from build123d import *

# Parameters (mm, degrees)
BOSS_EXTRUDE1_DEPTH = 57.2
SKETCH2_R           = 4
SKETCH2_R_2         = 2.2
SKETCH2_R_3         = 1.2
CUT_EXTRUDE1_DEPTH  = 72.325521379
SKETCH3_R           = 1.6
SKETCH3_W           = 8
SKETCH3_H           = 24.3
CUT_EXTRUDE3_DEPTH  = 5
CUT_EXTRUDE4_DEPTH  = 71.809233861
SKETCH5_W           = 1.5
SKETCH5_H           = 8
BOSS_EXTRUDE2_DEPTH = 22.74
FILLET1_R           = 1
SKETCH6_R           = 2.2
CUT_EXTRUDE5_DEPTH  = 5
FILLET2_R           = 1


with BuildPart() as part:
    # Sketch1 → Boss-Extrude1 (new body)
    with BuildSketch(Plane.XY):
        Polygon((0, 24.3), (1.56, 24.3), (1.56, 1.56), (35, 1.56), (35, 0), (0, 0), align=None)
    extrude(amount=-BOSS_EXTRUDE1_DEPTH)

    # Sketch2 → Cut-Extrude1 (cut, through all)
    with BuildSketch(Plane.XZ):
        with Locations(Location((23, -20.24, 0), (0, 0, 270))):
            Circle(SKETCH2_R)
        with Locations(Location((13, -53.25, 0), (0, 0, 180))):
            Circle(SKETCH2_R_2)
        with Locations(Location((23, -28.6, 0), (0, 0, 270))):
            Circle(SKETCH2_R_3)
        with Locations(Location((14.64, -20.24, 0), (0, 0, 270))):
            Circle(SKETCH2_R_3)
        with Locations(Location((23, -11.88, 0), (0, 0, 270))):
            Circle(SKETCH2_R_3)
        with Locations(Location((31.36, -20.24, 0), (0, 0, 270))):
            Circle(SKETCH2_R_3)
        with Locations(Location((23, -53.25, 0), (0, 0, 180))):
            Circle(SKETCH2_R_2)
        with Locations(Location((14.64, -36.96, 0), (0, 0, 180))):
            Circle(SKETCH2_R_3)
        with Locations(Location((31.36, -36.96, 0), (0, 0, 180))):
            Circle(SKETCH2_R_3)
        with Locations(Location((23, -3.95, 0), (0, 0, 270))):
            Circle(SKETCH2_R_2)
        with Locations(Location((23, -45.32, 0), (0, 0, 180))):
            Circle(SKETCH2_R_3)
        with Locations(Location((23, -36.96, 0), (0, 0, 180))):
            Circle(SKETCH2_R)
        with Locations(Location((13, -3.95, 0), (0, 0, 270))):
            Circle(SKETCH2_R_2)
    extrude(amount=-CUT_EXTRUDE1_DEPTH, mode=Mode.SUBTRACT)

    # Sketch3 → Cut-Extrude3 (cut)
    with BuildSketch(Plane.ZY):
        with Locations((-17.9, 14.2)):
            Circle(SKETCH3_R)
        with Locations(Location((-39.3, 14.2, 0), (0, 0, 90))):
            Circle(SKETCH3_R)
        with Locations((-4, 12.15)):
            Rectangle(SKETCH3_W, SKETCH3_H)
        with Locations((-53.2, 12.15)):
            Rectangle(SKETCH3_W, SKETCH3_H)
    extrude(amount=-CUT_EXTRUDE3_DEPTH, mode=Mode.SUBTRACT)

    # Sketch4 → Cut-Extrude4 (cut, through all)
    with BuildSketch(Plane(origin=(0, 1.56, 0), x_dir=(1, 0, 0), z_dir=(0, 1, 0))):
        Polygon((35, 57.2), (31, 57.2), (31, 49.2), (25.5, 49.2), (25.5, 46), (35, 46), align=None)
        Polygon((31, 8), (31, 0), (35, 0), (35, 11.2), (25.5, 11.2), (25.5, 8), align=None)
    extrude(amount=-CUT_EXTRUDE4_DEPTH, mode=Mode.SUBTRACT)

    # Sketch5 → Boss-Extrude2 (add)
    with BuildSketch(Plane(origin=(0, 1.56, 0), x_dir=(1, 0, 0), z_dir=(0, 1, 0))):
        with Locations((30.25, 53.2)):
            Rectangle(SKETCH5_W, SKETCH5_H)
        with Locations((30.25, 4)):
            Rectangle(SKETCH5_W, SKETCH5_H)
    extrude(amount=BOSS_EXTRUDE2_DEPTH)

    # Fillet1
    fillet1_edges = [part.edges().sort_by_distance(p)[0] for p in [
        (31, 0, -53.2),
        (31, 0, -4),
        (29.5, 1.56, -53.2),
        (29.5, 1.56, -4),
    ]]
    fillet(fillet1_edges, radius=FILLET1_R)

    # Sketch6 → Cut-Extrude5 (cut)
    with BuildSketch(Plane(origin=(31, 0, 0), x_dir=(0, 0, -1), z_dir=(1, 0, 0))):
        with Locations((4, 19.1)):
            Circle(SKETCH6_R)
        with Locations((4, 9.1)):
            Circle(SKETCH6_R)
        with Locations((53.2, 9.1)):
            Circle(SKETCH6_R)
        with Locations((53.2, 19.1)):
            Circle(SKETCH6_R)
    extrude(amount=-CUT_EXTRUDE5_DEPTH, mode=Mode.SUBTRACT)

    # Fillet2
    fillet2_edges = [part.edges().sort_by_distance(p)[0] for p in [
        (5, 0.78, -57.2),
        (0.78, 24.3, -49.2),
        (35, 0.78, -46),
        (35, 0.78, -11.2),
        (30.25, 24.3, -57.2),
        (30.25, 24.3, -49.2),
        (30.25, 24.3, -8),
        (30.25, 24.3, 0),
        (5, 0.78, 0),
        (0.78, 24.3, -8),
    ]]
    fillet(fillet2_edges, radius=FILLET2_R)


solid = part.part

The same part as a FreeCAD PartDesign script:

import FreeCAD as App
import Part
import Sketcher
Q = App.Units.Quantity


def edges_at(feature, points):
    """Names of the edges that pass closest to the given points."""
    edges = feature.Shape.Edges
    near = lambda p: min(range(len(edges)), key=lambda i: edges[i].distToShape(Part.Vertex(*p))[0])
    return sorted({f"Edge{near(p) + 1}" for p in points})


def add_polygon(sketch, points):
    """Adds a closed chain of lines whose ends are joined by coincident constraints."""
    first, n = sketch.GeometryCount, len(points)
    for a, b in zip(points, points[1:] + points[:1]):
        sketch.addGeometry(Part.LineSegment(App.Vector(*a, 0), App.Vector(*b, 0)), False)
    for i in range(n):
        sketch.addConstraint(Sketcher.Constraint("Coincident", first + i, 2, first + (i + 1) % n, 1))

doc = App.newDocument("Part")
body = doc.addObject("PartDesign::Body", "Body")

sketch1 = doc.addObject("Sketcher::SketchObject", "Sketch")
body.addObject(sketch1)
sketch1.AttachmentSupport = (doc.XY_Plane, [""])
sketch1.MapMode = "FlatFace"
add_polygon(sketch1, [(1.6, 24.3), (0, 24.3), (0, 0), (35, 0), (35, 1.6), (1.6, 1.6)])
sketch1.addConstraint(Sketcher.Constraint("Horizontal", 0))
sketch1.addConstraint(Sketcher.Constraint("Vertical", 1))
sketch1.addConstraint(Sketcher.Constraint("Horizontal", 2))
sketch1.addConstraint(Sketcher.Constraint("Vertical", 3))
sketch1.addConstraint(Sketcher.Constraint("Horizontal", 4))
sketch1.addConstraint(Sketcher.Constraint("Vertical", 5))
sketch1.addConstraint(Sketcher.Constraint("Coincident", 1, 2, -1, 1))
sketch1.addConstraint(Sketcher.Constraint("Equal", 0, 3))
sketch1.addConstraint(Sketcher.Constraint("DistanceX", 2, 1, 2, 2, Q("35 mm")))
sketch1.addConstraint(Sketcher.Constraint("DistanceY", 1, 2, 1, 1, Q("24.3 mm")))
sketch1.addConstraint(Sketcher.Constraint("DistanceX", 0, 2, 0, 1, Q("1.56 mm")))
pad1 = doc.addObject("PartDesign::Pad", "Pad")
body.addObject(pad1)
pad1.Profile = sketch1
pad1.Length = 57.2
pad1.Reversed = True

sketch2 = doc.addObject("Sketcher::SketchObject", "Sketch001")
body.addObject(sketch2)
sketch2.AttachmentSupport = (doc.XZ_Plane, [""])
sketch2.MapMode = "FlatFace"
sketch2.addGeometry(Part.Circle(App.Vector(23, -20.2, 0), App.Vector(0, 0, 1), 4), False)
sketch2.addGeometry(Part.Circle(App.Vector(13, -53.2, 0), App.Vector(0, 0, 1), 2.2), False)
sketch2.addGeometry(Part.Circle(App.Vector(23, -28.6, 0), App.Vector(0, 0, 1), 1.2), False)
sketch2.addGeometry(Part.Circle(App.Vector(14.6, -20.2, 0), App.Vector(0, 0, 1), 1.2), False)
sketch2.addGeometry(Part.Circle(App.Vector(23, -11.9, 0), App.Vector(0, 0, 1), 1.2), False)
sketch2.addGeometry(Part.Circle(App.Vector(31.4, -20.2, 0), App.Vector(0, 0, 1), 1.2), False)
sketch2.addGeometry(Part.Circle(App.Vector(23, -53.2, 0), App.Vector(0, 0, 1), 2.2), False)
sketch2.addGeometry(Part.Circle(App.Vector(14.6, -37, 0), App.Vector(0, 0, 1), 1.2), False)
sketch2.addGeometry(Part.Circle(App.Vector(31.4, -37, 0), App.Vector(0, 0, 1), 1.2), False)
sketch2.addGeometry(Part.Circle(App.Vector(23, -4, 0), App.Vector(0, 0, 1), 2.2), False)
sketch2.addGeometry(Part.Circle(App.Vector(23, -45.3, 0), App.Vector(0, 0, 1), 1.2), False)
sketch2.addGeometry(Part.Circle(App.Vector(23, -37, 0), App.Vector(0, 0, 1), 4), False)
sketch2.addGeometry(Part.Circle(App.Vector(13, -4, 0), App.Vector(0, 0, 1), 2.2), False)
sketch2.addConstraint(Sketcher.Constraint("Equal", 2, 3))
sketch2.addConstraint(Sketcher.Constraint("Equal", 3, 4))
sketch2.addConstraint(Sketcher.Constraint("Equal", 4, 5))
sketch2.addConstraint(Sketcher.Constraint("Equal", 1, 6))
sketch2.addConstraint(Sketcher.Constraint("Equal", 5, 7))
sketch2.addConstraint(Sketcher.Constraint("Equal", 7, 8))
sketch2.addConstraint(Sketcher.Constraint("Equal", 6, 9))
sketch2.addConstraint(Sketcher.Constraint("Equal", 8, 10))
sketch2.addConstraint(Sketcher.Constraint("Equal", 0, 11))
sketch2.addConstraint(Sketcher.Constraint("Equal", 9, 12))
sketch2.addConstraint(Sketcher.Constraint("Horizontal", 0, 3, 3, 3))
sketch2.addConstraint(Sketcher.Constraint("Horizontal", 3, 3, 5, 3))
sketch2.addConstraint(Sketcher.Constraint("Horizontal", 1, 3, 6, 3))
sketch2.addConstraint(Sketcher.Constraint("Horizontal", 7, 3, 8, 3))
sketch2.addConstraint(Sketcher.Constraint("Horizontal", 8, 3, 11, 3))
sketch2.addConstraint(Sketcher.Constraint("Horizontal", 9, 3, 12, 3))
sketch2.addConstraint(Sketcher.Constraint("Vertical", 0, 3, 2, 3))
sketch2.addConstraint(Sketcher.Constraint("Vertical", 2, 3, 4, 3))
sketch2.addConstraint(Sketcher.Constraint("Vertical", 4, 3, 6, 3))
sketch2.addConstraint(Sketcher.Constraint("Vertical", 3, 3, 7, 3))
sketch2.addConstraint(Sketcher.Constraint("Vertical", 5, 3, 8, 3))
sketch2.addConstraint(Sketcher.Constraint("Vertical", 6, 3, 9, 3))
sketch2.addConstraint(Sketcher.Constraint("Vertical", 9, 3, 10, 3))
sketch2.addConstraint(Sketcher.Constraint("Vertical", 10, 3, 11, 3))
sketch2.addConstraint(Sketcher.Constraint("Vertical", 1, 3, 12, 3))
sketch2.addConstraint(Sketcher.Constraint("Diameter", 0, Q("8 mm")))
sketch2.addConstraint(Sketcher.Constraint("Diameter", 1, Q("4.4 mm")))
sketch2.addConstraint(Sketcher.Constraint("Diameter", 2, Q("2.4 mm")))
sketch2.addConstraint(Sketcher.Constraint("DistanceX", -1, 1, 0, 3, Q("23 mm")))
sketch2.addConstraint(Sketcher.Constraint("DistanceX", -1, 1, 1, 3, Q("13 mm")))
sketch2.addConstraint(Sketcher.Constraint("DistanceY", 2, 3, -1, 1, Q("28.6 mm")))
sketch2.addConstraint(Sketcher.Constraint("DistanceY", 0, 3, -1, 1, Q("20.24 mm")))
sketch2.addConstraint(Sketcher.Constraint("DistanceY", 1, 3, -1, 1, Q("53.25 mm")))
sketch2.addConstraint(Sketcher.Constraint("DistanceX", -1, 1, 3, 3, Q("14.64 mm")))
sketch2.addConstraint(Sketcher.Constraint("DistanceY", 4, 3, -1, 1, Q("11.88 mm")))
sketch2.addConstraint(Sketcher.Constraint("DistanceX", -1, 1, 5, 3, Q("31.36 mm")))
sketch2.addConstraint(Sketcher.Constraint("DistanceY", 7, 3, -1, 1, Q("36.96 mm")))
sketch2.addConstraint(Sketcher.Constraint("DistanceY", 9, 3, -1, 1, Q("3.95 mm")))
sketch2.addConstraint(Sketcher.Constraint("DistanceY", 10, 3, -1, 1, Q("45.32 mm")))
pocket1 = doc.addObject("PartDesign::Pocket", "Pocket")
body.addObject(pocket1)
pocket1.Profile = sketch2
pocket1.Type = "ThroughAll"

sketch3 = doc.addObject("Sketcher::SketchObject", "Sketch002")
body.addObject(sketch3)
sketch3.AttachmentSupport = (doc.YZ_Plane, [""])
sketch3.MapMode = "FlatFace"
sketch3.addGeometry(Part.Circle(App.Vector(14.2, -17.9, 0), App.Vector(0, 0, 1), 1.6), False)
sketch3.addGeometry(Part.Circle(App.Vector(14.2, -39.3, 0), App.Vector(0, 0, 1), 1.6), False)
add_polygon(sketch3, [(24.3, -8), (0, -8), (0, 0), (24.3, 0)])
add_polygon(sketch3, [(24.3, -57.2), (0, -57.2), (0, -49.2), (24.3, -49.2)])
sketch3.addConstraint(Sketcher.Constraint("Horizontal", 2))
sketch3.addConstraint(Sketcher.Constraint("Vertical", 3))
sketch3.addConstraint(Sketcher.Constraint("Horizontal", 4))
sketch3.addConstraint(Sketcher.Constraint("Vertical", 5))
sketch3.addConstraint(Sketcher.Constraint("Horizontal", 6))
sketch3.addConstraint(Sketcher.Constraint("Vertical", 7))
sketch3.addConstraint(Sketcher.Constraint("Horizontal", 8))
sketch3.addConstraint(Sketcher.Constraint("Vertical", 9))
sketch3.addConstraint(Sketcher.Constraint("Coincident", 3, 2, -1, 1))
sketch3.addConstraint(Sketcher.Constraint("Equal", 0, 1))
sketch3.addConstraint(Sketcher.Constraint("PointOnObject", 6, 2, -2))
sketch3.addConstraint(Sketcher.Constraint("Vertical", 0, 3, 1, 3))
sketch3.addConstraint(Sketcher.Constraint("Vertical", 5, 2, 8, 2))
sketch3.addConstraint(Sketcher.Constraint("Equal", 5, 7))
sketch3.addConstraint(Sketcher.Constraint("Diameter", 0, Q("3.2 mm")))
sketch3.addConstraint(Sketcher.Constraint("DistanceY", 3, 1, 3, 2, Q("8 mm")))
sketch3.addConstraint(Sketcher.Constraint("DistanceX", 2, 2, 2, 1, Q("24.3 mm")))
sketch3.addConstraint(Sketcher.Constraint("DistanceX", -1, 1, 0, 3, Q("14.2 mm")))
sketch3.addConstraint(Sketcher.Constraint("DistanceY", 0, 3, -1, 1, Q("17.9 mm")))
sketch3.addConstraint(Sketcher.Constraint("DistanceY", 1, 3, -1, 1, Q("39.3 mm")))
sketch3.addConstraint(Sketcher.Constraint("DistanceY", 6, 2, -1, 1, Q("57.2 mm")))
pocket2 = doc.addObject("PartDesign::Pocket", "Pocket001")
body.addObject(pocket2)
pocket2.Profile = sketch3
pocket2.Length = 5
pocket2.Reversed = True

sketch4 = doc.addObject("Sketcher::SketchObject", "Sketch003")
body.addObject(sketch4)
sketch4.AttachmentSupport = (doc.XZ_Plane, [""])
sketch4.MapMode = "FlatFace"
sketch4.AttachmentOffset = App.Placement(App.Vector(0, 0, -1.56), App.Rotation())
add_polygon(sketch4, [(35, -57.2), (31, -57.2), (31, -49.2), (25.5, -49.2), (25.5, -46), (35, -46)])
add_polygon(sketch4, [(31, -8), (31, 0), (35, 0), (35, -11.2), (25.5, -11.2), (25.5, -8)])
sketch4.addConstraint(Sketcher.Constraint("Horizontal", 0))
sketch4.addConstraint(Sketcher.Constraint("Vertical", 1))
sketch4.addConstraint(Sketcher.Constraint("Horizontal", 2))
sketch4.addConstraint(Sketcher.Constraint("Vertical", 3))
sketch4.addConstraint(Sketcher.Constraint("Horizontal", 4))
sketch4.addConstraint(Sketcher.Constraint("Vertical", 5))
sketch4.addConstraint(Sketcher.Constraint("Vertical", 6))
sketch4.addConstraint(Sketcher.Constraint("Horizontal", 7))
sketch4.addConstraint(Sketcher.Constraint("Vertical", 8))
sketch4.addConstraint(Sketcher.Constraint("Horizontal", 9))
sketch4.addConstraint(Sketcher.Constraint("Vertical", 10))
sketch4.addConstraint(Sketcher.Constraint("Horizontal", 11))
sketch4.addConstraint(Sketcher.Constraint("PointOnObject", 6, 2, -1))
sketch4.addConstraint(Sketcher.Constraint("Vertical", 1, 2, 6, 2))
sketch4.addConstraint(Sketcher.Constraint("Vertical", 5, 2, 7, 2))
sketch4.addConstraint(Sketcher.Constraint("Vertical", 3, 2, 9, 2))
sketch4.addConstraint(Sketcher.Constraint("Equal", 1, 6))
sketch4.addConstraint(Sketcher.Constraint("Equal", 5, 8))
sketch4.addConstraint(Sketcher.Constraint("DistanceX", 0, 2, 0, 1, Q("4 mm")))
sketch4.addConstraint(Sketcher.Constraint("DistanceY", 1, 1, 1, 2, Q("8 mm")))
sketch4.addConstraint(Sketcher.Constraint("DistanceX", 2, 2, 2, 1, Q("5.5 mm")))
sketch4.addConstraint(Sketcher.Constraint("DistanceY", 3, 1, 3, 2, Q("3.2 mm")))
sketch4.addConstraint(Sketcher.Constraint("DistanceX", -1, 1, 0, 2, Q("31 mm")))
sketch4.addConstraint(Sketcher.Constraint("DistanceY", 3, 2, -1, 1, Q("46 mm")))
pocket3 = doc.addObject("PartDesign::Pocket", "Pocket002")
body.addObject(pocket3)
pocket3.Profile = sketch4
pocket3.Type = "ThroughAll"
pocket3.Reversed = True

sketch5 = doc.addObject("Sketcher::SketchObject", "Sketch004")
body.addObject(sketch5)
sketch5.AttachmentSupport = (doc.XZ_Plane, [""])
sketch5.MapMode = "FlatFace"
sketch5.AttachmentOffset = App.Placement(App.Vector(0, 0, -1.56), App.Rotation())
add_polygon(sketch5, [(29.5, -57.2), (29.5, -49.2), (31, -49.2), (31, -57.2)])
add_polygon(sketch5, [(29.5, -8), (29.5, 0), (31, 0), (31, -8)])
sketch5.addConstraint(Sketcher.Constraint("Vertical", 0))
sketch5.addConstraint(Sketcher.Constraint("Horizontal", 1))
sketch5.addConstraint(Sketcher.Constraint("Vertical", 2))
sketch5.addConstraint(Sketcher.Constraint("Horizontal", 3))
sketch5.addConstraint(Sketcher.Constraint("Vertical", 4))
sketch5.addConstraint(Sketcher.Constraint("Horizontal", 5))
sketch5.addConstraint(Sketcher.Constraint("Vertical", 6))
sketch5.addConstraint(Sketcher.Constraint("Horizontal", 7))
sketch5.addConstraint(Sketcher.Constraint("PointOnObject", 4, 2, -1))
sketch5.addConstraint(Sketcher.Constraint("Vertical", 3, 2, 4, 2))
sketch5.addConstraint(Sketcher.Constraint("Vertical", 2, 2, 5, 2))
sketch5.addConstraint(Sketcher.Constraint("Equal", 2, 4))
sketch5.addConstraint(Sketcher.Constraint("DistanceY", 0, 1, 0, 2, Q("8 mm")))
sketch5.addConstraint(Sketcher.Constraint("DistanceX", 1, 1, 1, 2, Q("1.5 mm")))
sketch5.addConstraint(Sketcher.Constraint("DistanceX", -1, 1, 1, 2, Q("31 mm")))
sketch5.addConstraint(Sketcher.Constraint("DistanceY", 0, 2, -1, 1, Q("49.2 mm")))
pad2 = doc.addObject("PartDesign::Pad", "Pad001")
body.addObject(pad2)
pad2.Profile = sketch5
pad2.Length = 22.74
pad2.Reversed = True
doc.recompute()

fillet = doc.addObject("PartDesign::Fillet", "Fillet")
body.addObject(fillet)
fillet.Base = (pad2, edges_at(pad2, [
    (31, 0, -53.2),
    (31, 0, -4),
    (29.5, 1.56, -53.2),
    (29.5, 1.56, -4),
]))
fillet.Radius = 1

sketch6 = doc.addObject("Sketcher::SketchObject", "Sketch005")
body.addObject(sketch6)
sketch6.AttachmentSupport = (doc.YZ_Plane, [""])
sketch6.MapMode = "FlatFace"
sketch6.AttachmentOffset = App.Placement(App.Vector(0, 0, 31), App.Rotation())
sketch6.addGeometry(Part.Circle(App.Vector(19.1, -4, 0), App.Vector(0, 0, 1), 2.2), False)
sketch6.addGeometry(Part.Circle(App.Vector(9.1, -4, 0), App.Vector(0, 0, 1), 2.2), False)
sketch6.addGeometry(Part.Circle(App.Vector(9.1, -53.2, 0), App.Vector(0, 0, 1), 2.2), False)
sketch6.addGeometry(Part.Circle(App.Vector(19.1, -53.2, 0), App.Vector(0, 0, 1), 2.2), False)
sketch6.addConstraint(Sketcher.Constraint("Equal", 0, 1))
sketch6.addConstraint(Sketcher.Constraint("Equal", 1, 2))
sketch6.addConstraint(Sketcher.Constraint("Equal", 2, 3))
sketch6.addConstraint(Sketcher.Constraint("Horizontal", 0, 3, 1, 3))
sketch6.addConstraint(Sketcher.Constraint("Horizontal", 2, 3, 3, 3))
sketch6.addConstraint(Sketcher.Constraint("Vertical", 1, 3, 2, 3))
sketch6.addConstraint(Sketcher.Constraint("Vertical", 0, 3, 3, 3))
sketch6.addConstraint(Sketcher.Constraint("Diameter", 0, Q("4.4 mm")))
sketch6.addConstraint(Sketcher.Constraint("DistanceY", 0, 3, -1, 1, Q("4 mm")))
sketch6.addConstraint(Sketcher.Constraint("DistanceX", 1, 3, 0, 3, Q("10 mm")))
sketch6.addConstraint(Sketcher.Constraint("DistanceX", -1, 1, 0, 3, Q("19.1 mm")))
sketch6.addConstraint(Sketcher.Constraint("DistanceY", 2, 3, -1, 1, Q("53.2 mm")))
pocket4 = doc.addObject("PartDesign::Pocket", "Pocket003")
body.addObject(pocket4)
pocket4.Profile = sketch6
pocket4.Length = 5
doc.recompute()

fillet2 = doc.addObject("PartDesign::Fillet", "Fillet001")
body.addObject(fillet2)
fillet2.Base = (pocket4, edges_at(pocket4, [
    (5, 0.78, -57.2),
    (0.78, 24.3, -49.2),
    (35, 0.78, -46),
    (35, 0.78, -11.2),
    (30.25, 24.3, -57.2),
    (30.25, 24.3, -49.2),
    (30.25, 24.3, -8),
    (30.25, 24.3, 0),
    (5, 0.78, 0),
    (0.78, 24.3, -8),
]))
fillet2.Radius = 1

doc.recompute()
